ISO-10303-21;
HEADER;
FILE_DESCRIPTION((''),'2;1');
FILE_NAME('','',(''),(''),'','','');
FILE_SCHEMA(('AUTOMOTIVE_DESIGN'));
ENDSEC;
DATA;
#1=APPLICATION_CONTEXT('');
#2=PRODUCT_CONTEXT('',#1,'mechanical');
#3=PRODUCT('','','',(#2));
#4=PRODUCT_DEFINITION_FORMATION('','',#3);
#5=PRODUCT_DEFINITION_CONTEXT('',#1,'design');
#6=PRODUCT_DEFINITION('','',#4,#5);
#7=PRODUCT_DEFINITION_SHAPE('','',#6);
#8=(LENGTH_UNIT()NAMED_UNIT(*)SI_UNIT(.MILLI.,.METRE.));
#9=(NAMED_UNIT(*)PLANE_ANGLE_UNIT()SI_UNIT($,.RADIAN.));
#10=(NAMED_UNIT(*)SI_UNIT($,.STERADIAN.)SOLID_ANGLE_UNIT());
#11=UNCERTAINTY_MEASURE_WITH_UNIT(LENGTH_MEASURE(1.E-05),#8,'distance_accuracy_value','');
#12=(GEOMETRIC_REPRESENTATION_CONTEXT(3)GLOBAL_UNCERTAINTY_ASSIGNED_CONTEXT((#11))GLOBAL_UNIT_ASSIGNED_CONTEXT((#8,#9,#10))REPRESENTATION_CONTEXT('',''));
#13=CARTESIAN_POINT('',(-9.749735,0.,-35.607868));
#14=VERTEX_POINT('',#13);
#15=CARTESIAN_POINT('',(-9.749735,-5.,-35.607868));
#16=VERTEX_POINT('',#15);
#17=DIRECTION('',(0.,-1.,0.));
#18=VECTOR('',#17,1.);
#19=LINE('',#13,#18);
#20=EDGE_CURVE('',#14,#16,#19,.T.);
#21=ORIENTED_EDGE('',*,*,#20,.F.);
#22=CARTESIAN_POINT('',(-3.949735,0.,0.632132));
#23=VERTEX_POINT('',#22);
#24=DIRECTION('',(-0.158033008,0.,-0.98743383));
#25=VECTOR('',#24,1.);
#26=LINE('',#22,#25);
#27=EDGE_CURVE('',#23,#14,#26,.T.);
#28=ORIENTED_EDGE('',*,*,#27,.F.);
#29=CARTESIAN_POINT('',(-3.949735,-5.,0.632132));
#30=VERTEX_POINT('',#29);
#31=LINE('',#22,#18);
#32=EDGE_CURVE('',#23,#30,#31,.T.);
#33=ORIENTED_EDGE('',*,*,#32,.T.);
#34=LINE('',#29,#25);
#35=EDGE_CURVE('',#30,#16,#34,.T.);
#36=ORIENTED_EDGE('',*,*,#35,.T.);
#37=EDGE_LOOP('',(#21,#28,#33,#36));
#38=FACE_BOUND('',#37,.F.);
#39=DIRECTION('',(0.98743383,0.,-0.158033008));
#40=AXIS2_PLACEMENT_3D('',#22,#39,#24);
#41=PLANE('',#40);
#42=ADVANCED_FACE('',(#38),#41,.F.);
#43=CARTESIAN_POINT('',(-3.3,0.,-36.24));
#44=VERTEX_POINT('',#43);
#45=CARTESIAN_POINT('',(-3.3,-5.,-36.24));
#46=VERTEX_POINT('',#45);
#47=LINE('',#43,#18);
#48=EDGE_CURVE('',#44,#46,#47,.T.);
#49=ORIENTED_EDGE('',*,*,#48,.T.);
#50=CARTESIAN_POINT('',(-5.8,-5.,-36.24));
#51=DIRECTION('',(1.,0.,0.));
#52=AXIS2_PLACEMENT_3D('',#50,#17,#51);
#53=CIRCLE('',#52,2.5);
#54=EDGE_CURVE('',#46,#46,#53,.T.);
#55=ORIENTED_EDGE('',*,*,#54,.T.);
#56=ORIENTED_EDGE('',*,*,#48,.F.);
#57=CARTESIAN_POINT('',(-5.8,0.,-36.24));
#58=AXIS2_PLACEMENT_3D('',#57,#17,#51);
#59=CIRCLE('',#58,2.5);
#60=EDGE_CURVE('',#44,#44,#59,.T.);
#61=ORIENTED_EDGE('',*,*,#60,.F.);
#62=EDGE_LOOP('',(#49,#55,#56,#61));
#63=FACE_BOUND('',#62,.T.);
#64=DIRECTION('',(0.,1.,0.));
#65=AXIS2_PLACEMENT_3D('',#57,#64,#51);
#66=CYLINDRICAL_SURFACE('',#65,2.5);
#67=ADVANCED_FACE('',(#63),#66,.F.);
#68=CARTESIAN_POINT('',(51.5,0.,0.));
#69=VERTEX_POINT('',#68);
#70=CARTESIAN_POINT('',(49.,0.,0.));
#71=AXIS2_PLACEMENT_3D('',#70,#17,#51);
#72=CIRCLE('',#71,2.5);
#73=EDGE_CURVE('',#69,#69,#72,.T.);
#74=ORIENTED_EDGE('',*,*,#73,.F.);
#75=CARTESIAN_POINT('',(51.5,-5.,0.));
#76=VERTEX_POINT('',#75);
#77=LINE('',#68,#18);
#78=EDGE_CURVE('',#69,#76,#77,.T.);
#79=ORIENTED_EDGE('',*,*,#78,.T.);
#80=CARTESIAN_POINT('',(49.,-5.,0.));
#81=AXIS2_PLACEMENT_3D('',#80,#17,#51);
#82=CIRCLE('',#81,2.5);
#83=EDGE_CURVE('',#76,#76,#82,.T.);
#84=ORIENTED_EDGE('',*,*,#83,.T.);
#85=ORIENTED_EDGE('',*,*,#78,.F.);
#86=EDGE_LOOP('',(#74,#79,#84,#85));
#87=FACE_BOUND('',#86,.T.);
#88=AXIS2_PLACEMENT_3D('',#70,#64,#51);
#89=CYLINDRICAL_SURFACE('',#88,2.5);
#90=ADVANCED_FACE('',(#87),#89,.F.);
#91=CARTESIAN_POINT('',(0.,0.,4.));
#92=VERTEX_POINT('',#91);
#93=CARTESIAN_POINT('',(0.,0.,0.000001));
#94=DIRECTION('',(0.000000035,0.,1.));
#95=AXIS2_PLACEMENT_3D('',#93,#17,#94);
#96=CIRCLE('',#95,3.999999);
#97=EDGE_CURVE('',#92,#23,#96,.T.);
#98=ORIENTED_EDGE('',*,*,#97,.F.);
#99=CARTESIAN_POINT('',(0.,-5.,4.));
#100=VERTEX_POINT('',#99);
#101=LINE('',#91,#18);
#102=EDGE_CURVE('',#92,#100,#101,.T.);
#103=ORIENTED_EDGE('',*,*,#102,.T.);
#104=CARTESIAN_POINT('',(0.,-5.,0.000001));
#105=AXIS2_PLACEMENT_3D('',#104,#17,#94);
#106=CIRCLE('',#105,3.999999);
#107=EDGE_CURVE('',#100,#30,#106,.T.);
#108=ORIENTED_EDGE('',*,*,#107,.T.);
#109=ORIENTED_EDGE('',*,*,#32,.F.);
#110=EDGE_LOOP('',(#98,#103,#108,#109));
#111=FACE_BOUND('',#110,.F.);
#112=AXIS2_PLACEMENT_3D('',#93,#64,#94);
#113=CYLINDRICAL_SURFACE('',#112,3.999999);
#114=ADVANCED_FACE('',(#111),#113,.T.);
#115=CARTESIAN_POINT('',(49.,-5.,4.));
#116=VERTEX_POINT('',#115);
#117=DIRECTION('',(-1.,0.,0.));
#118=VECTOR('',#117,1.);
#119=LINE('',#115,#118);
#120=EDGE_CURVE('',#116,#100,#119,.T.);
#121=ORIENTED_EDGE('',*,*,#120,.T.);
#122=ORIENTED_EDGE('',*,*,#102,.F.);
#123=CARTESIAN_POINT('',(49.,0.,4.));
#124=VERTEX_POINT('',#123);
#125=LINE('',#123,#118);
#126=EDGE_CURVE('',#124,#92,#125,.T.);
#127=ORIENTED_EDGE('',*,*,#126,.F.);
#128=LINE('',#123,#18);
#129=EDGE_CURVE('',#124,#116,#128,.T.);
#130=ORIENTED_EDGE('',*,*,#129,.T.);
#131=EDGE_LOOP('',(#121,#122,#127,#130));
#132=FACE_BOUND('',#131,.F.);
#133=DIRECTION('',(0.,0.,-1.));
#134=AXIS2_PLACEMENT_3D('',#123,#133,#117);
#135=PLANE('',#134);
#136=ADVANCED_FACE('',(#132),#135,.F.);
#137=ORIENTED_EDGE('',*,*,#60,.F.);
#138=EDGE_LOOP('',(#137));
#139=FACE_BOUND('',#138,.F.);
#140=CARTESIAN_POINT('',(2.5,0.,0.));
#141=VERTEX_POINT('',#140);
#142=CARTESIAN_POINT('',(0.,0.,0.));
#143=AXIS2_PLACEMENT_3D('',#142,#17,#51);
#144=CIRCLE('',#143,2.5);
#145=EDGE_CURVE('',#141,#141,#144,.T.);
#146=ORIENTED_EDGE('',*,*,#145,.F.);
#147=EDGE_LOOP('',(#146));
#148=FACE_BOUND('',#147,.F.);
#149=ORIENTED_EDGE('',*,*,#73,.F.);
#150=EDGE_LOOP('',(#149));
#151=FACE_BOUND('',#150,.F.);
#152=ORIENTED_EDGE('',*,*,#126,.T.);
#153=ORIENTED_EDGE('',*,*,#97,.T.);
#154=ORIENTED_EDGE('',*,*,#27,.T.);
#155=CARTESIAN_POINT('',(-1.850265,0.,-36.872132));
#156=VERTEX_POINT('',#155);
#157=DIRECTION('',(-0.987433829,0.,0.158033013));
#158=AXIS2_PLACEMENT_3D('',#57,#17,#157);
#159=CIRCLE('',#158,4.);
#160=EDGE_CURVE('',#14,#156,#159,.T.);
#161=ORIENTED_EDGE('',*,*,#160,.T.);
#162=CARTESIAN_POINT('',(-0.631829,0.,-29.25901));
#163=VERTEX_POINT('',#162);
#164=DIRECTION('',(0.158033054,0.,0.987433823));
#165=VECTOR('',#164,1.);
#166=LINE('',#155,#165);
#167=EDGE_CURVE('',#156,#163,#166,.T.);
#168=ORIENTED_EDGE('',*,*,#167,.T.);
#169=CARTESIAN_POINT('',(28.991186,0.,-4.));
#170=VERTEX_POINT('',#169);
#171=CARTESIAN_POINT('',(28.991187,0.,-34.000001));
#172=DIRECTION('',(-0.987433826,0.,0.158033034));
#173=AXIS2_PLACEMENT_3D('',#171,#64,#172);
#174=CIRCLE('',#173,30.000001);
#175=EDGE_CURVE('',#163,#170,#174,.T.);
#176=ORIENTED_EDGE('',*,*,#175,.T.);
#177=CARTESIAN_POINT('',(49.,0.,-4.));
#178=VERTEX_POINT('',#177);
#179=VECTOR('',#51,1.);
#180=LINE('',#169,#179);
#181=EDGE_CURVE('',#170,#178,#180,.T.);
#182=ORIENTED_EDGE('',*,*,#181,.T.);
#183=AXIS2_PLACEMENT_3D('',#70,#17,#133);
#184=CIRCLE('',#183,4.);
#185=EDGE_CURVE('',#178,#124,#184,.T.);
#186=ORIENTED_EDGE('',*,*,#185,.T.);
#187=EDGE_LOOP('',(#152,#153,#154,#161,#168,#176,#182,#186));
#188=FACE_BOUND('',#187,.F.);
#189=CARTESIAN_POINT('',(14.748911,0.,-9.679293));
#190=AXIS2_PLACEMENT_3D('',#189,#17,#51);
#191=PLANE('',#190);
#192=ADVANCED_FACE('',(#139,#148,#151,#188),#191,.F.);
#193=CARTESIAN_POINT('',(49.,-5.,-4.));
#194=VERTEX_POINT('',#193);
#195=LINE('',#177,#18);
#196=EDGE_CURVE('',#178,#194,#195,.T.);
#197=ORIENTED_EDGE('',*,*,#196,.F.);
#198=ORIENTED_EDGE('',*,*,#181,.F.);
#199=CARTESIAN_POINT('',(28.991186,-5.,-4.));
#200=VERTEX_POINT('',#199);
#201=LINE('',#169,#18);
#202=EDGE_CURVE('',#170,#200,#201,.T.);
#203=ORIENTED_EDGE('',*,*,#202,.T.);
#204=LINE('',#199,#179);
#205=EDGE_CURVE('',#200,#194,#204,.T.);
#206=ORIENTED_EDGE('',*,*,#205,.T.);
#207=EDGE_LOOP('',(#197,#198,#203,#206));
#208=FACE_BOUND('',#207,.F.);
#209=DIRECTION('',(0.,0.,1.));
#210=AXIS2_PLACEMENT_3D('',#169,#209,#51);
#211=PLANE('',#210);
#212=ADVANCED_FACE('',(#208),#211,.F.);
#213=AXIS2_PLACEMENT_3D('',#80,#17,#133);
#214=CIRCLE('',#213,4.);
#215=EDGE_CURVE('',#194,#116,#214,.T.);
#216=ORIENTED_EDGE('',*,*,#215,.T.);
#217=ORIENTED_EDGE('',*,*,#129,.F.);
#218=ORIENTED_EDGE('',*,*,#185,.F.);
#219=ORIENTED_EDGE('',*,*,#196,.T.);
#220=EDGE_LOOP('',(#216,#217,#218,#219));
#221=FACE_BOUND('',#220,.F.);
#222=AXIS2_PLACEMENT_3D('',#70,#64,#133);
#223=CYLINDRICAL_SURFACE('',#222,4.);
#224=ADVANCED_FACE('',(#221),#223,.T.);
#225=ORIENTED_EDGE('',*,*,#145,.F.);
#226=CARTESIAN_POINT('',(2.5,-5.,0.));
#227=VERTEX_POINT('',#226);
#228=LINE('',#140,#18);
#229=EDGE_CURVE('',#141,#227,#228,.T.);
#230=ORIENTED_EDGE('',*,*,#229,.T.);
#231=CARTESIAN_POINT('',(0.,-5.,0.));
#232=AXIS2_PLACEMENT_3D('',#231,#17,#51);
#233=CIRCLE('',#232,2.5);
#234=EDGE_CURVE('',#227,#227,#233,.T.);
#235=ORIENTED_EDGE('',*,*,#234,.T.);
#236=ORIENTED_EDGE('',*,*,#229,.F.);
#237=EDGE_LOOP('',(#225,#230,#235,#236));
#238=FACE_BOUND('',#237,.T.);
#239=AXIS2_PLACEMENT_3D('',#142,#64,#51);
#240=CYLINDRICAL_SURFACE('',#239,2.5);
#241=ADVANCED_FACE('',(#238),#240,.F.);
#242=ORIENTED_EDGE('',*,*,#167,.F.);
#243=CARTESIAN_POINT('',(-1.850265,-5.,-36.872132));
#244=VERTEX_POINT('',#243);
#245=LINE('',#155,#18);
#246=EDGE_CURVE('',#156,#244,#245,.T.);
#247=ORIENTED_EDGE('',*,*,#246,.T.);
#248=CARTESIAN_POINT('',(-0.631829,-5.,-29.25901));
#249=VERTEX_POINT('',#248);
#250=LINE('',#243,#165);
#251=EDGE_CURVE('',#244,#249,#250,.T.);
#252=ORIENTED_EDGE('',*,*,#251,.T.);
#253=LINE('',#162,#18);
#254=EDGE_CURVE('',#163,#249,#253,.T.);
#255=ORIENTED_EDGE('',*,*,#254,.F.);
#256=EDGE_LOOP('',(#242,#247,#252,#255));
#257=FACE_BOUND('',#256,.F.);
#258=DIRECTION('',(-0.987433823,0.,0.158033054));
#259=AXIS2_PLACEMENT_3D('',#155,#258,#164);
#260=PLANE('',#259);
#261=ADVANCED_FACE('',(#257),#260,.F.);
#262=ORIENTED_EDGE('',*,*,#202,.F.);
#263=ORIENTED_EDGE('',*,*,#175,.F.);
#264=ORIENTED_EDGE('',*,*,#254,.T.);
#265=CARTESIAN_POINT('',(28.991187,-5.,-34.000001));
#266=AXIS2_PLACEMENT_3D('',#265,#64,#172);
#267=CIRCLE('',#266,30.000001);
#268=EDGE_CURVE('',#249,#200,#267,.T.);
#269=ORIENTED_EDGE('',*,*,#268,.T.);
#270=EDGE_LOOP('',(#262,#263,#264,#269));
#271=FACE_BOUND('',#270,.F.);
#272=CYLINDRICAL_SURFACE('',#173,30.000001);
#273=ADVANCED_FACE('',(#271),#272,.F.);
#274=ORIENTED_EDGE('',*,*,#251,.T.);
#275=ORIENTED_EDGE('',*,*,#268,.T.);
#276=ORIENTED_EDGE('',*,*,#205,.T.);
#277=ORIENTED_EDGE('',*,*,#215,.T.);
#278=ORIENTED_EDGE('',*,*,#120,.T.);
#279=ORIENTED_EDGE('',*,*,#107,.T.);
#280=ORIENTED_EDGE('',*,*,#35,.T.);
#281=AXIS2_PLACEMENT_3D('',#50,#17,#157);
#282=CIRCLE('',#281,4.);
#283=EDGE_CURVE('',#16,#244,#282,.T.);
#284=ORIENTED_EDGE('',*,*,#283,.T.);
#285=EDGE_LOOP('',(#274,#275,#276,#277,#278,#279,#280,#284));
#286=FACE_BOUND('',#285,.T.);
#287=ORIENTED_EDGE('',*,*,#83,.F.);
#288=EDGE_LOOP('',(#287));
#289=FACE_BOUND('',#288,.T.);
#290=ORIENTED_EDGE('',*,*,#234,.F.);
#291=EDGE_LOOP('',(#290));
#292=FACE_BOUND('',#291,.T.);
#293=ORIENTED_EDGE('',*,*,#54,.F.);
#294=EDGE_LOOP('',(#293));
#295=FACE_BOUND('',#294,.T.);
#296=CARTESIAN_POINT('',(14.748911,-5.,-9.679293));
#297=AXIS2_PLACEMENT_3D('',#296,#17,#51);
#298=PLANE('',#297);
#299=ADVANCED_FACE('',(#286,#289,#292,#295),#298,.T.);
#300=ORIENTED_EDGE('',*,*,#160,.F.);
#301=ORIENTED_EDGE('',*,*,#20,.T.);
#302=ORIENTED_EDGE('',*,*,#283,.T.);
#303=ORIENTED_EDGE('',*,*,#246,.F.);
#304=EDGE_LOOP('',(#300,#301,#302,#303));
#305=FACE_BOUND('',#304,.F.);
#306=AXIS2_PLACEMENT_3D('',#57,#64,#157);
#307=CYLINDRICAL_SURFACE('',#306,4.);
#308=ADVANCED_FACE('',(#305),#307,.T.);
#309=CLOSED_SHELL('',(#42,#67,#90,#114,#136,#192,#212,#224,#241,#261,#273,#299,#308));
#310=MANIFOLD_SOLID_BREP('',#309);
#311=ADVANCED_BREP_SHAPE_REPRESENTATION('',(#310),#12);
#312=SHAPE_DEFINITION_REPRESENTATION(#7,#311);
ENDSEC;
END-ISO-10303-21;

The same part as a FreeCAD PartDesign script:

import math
import FreeCAD as App
import Part
import Sketcher
from FreeCAD import Vector

doc = App.newDocument("Part")
body = doc.addObject("PartDesign::Body", "Body")

sketch1 = doc.addObject("Sketcher::SketchObject", "Sketch")
body.addObject(sketch1)
sketch1.AttachmentSupport = (doc.XZ_Plane, [""])
sketch1.MapMode = "FlatFace"
sketch1.addGeometry([
    Part.LineSegment(Vector(49, 4, 0), Vector(0, 4, 0)),
    Part.ArcOfCircle(Part.Circle(Vector(0, 0, 0), Vector(0, 0, 1), 4), math.radians(90), math.radians(171)),
    Part.LineSegment(Vector(-3.9, 0.6, 0), Vector(-9.7, -35.6, 0)),
    Part.ArcOfCircle(Part.Circle(Vector(-5.8, -36.2, 0), Vector(0, 0, 1), 4), math.radians(171), math.radians(351)),
    Part.LineSegment(Vector(-1.9, -36.9, 0), Vector(-0.6, -29.3, 0)),
    Part.ArcOfCircle(Part.Circle(Vector(29, -34, 0), Vector(0, 0, 1), 30), math.radians(90), math.radians(171)),
    Part.LineSegment(Vector(29, -4, 0), Vector(49, -4, 0)),
    Part.ArcOfCircle(Part.Circle(Vector(49, 0, 0), Vector(0, 0, 1), 4), math.radians(-90), math.radians(90)),
    Part.Circle(Vector(-5.8, -36.2, 0), Vector(0, 0, 1), 2.5),
    Part.Circle(Vector(0, 0, 0), Vector(0, 0, 1), 2.5),
    Part.Circle(Vector(49, 0, 0), Vector(0, 0, 1), 2.5),
], False)
sketch1.addConstraint([
    Sketcher.Constraint("Tangent", 0, 2, 1, 1),
    Sketcher.Constraint("Tangent", 1, 2, 2, 1),
    Sketcher.Constraint("Tangent", 2, 2, 3, 1),
    Sketcher.Constraint("Tangent", 3, 2, 4, 1),
    Sketcher.Constraint("Tangent", 4, 2, 5, 2),
    Sketcher.Constraint("Tangent", 5, 1, 6, 1),
    Sketcher.Constraint("Tangent", 6, 2, 7, 1),
    Sketcher.Constraint("Tangent", 7, 2, 0, 1),
    Sketcher.Constraint("Horizontal", 0),
    Sketcher.Constraint("Horizontal", 6),
    Sketcher.Constraint("Coincident", 1, 3, -1, 1),
    Sketcher.Constraint("Coincident", 9, 3, -1, 1),
    Sketcher.Constraint("Coincident", 8, 3, 3, 3),
    Sketcher.Constraint("Coincident", 10, 3, 7, 3),
    Sketcher.Constraint("Equal", 1, 3),
    Sketcher.Constraint("Equal", 3, 7),
    Sketcher.Constraint("Equal", 8, 9),
    Sketcher.Constraint("Equal", 9, 10),
    Sketcher.Constraint("Parallel", 2, 4),
    Sketcher.Constraint("Diameter", 8, 5.0),
    Sketcher.Constraint("Radius", 1, 3.999999),
    Sketcher.Constraint("Radius", 5, 30.000001),
    Sketcher.Constraint("DistanceX", 0, 2, 0, 1, 49.0),
    Sketcher.Constraint("DistanceX", 3, 3, -1, 1, 5.8),
    Sketcher.Constraint("DistanceY", 3, 3, -1, 1, 36.24),
])
pad1 = doc.addObject("PartDesign::Pad", "Pad")
body.addObject(pad1)
pad1.Profile = sketch1
pad1.Length = 5

doc.recompute()
